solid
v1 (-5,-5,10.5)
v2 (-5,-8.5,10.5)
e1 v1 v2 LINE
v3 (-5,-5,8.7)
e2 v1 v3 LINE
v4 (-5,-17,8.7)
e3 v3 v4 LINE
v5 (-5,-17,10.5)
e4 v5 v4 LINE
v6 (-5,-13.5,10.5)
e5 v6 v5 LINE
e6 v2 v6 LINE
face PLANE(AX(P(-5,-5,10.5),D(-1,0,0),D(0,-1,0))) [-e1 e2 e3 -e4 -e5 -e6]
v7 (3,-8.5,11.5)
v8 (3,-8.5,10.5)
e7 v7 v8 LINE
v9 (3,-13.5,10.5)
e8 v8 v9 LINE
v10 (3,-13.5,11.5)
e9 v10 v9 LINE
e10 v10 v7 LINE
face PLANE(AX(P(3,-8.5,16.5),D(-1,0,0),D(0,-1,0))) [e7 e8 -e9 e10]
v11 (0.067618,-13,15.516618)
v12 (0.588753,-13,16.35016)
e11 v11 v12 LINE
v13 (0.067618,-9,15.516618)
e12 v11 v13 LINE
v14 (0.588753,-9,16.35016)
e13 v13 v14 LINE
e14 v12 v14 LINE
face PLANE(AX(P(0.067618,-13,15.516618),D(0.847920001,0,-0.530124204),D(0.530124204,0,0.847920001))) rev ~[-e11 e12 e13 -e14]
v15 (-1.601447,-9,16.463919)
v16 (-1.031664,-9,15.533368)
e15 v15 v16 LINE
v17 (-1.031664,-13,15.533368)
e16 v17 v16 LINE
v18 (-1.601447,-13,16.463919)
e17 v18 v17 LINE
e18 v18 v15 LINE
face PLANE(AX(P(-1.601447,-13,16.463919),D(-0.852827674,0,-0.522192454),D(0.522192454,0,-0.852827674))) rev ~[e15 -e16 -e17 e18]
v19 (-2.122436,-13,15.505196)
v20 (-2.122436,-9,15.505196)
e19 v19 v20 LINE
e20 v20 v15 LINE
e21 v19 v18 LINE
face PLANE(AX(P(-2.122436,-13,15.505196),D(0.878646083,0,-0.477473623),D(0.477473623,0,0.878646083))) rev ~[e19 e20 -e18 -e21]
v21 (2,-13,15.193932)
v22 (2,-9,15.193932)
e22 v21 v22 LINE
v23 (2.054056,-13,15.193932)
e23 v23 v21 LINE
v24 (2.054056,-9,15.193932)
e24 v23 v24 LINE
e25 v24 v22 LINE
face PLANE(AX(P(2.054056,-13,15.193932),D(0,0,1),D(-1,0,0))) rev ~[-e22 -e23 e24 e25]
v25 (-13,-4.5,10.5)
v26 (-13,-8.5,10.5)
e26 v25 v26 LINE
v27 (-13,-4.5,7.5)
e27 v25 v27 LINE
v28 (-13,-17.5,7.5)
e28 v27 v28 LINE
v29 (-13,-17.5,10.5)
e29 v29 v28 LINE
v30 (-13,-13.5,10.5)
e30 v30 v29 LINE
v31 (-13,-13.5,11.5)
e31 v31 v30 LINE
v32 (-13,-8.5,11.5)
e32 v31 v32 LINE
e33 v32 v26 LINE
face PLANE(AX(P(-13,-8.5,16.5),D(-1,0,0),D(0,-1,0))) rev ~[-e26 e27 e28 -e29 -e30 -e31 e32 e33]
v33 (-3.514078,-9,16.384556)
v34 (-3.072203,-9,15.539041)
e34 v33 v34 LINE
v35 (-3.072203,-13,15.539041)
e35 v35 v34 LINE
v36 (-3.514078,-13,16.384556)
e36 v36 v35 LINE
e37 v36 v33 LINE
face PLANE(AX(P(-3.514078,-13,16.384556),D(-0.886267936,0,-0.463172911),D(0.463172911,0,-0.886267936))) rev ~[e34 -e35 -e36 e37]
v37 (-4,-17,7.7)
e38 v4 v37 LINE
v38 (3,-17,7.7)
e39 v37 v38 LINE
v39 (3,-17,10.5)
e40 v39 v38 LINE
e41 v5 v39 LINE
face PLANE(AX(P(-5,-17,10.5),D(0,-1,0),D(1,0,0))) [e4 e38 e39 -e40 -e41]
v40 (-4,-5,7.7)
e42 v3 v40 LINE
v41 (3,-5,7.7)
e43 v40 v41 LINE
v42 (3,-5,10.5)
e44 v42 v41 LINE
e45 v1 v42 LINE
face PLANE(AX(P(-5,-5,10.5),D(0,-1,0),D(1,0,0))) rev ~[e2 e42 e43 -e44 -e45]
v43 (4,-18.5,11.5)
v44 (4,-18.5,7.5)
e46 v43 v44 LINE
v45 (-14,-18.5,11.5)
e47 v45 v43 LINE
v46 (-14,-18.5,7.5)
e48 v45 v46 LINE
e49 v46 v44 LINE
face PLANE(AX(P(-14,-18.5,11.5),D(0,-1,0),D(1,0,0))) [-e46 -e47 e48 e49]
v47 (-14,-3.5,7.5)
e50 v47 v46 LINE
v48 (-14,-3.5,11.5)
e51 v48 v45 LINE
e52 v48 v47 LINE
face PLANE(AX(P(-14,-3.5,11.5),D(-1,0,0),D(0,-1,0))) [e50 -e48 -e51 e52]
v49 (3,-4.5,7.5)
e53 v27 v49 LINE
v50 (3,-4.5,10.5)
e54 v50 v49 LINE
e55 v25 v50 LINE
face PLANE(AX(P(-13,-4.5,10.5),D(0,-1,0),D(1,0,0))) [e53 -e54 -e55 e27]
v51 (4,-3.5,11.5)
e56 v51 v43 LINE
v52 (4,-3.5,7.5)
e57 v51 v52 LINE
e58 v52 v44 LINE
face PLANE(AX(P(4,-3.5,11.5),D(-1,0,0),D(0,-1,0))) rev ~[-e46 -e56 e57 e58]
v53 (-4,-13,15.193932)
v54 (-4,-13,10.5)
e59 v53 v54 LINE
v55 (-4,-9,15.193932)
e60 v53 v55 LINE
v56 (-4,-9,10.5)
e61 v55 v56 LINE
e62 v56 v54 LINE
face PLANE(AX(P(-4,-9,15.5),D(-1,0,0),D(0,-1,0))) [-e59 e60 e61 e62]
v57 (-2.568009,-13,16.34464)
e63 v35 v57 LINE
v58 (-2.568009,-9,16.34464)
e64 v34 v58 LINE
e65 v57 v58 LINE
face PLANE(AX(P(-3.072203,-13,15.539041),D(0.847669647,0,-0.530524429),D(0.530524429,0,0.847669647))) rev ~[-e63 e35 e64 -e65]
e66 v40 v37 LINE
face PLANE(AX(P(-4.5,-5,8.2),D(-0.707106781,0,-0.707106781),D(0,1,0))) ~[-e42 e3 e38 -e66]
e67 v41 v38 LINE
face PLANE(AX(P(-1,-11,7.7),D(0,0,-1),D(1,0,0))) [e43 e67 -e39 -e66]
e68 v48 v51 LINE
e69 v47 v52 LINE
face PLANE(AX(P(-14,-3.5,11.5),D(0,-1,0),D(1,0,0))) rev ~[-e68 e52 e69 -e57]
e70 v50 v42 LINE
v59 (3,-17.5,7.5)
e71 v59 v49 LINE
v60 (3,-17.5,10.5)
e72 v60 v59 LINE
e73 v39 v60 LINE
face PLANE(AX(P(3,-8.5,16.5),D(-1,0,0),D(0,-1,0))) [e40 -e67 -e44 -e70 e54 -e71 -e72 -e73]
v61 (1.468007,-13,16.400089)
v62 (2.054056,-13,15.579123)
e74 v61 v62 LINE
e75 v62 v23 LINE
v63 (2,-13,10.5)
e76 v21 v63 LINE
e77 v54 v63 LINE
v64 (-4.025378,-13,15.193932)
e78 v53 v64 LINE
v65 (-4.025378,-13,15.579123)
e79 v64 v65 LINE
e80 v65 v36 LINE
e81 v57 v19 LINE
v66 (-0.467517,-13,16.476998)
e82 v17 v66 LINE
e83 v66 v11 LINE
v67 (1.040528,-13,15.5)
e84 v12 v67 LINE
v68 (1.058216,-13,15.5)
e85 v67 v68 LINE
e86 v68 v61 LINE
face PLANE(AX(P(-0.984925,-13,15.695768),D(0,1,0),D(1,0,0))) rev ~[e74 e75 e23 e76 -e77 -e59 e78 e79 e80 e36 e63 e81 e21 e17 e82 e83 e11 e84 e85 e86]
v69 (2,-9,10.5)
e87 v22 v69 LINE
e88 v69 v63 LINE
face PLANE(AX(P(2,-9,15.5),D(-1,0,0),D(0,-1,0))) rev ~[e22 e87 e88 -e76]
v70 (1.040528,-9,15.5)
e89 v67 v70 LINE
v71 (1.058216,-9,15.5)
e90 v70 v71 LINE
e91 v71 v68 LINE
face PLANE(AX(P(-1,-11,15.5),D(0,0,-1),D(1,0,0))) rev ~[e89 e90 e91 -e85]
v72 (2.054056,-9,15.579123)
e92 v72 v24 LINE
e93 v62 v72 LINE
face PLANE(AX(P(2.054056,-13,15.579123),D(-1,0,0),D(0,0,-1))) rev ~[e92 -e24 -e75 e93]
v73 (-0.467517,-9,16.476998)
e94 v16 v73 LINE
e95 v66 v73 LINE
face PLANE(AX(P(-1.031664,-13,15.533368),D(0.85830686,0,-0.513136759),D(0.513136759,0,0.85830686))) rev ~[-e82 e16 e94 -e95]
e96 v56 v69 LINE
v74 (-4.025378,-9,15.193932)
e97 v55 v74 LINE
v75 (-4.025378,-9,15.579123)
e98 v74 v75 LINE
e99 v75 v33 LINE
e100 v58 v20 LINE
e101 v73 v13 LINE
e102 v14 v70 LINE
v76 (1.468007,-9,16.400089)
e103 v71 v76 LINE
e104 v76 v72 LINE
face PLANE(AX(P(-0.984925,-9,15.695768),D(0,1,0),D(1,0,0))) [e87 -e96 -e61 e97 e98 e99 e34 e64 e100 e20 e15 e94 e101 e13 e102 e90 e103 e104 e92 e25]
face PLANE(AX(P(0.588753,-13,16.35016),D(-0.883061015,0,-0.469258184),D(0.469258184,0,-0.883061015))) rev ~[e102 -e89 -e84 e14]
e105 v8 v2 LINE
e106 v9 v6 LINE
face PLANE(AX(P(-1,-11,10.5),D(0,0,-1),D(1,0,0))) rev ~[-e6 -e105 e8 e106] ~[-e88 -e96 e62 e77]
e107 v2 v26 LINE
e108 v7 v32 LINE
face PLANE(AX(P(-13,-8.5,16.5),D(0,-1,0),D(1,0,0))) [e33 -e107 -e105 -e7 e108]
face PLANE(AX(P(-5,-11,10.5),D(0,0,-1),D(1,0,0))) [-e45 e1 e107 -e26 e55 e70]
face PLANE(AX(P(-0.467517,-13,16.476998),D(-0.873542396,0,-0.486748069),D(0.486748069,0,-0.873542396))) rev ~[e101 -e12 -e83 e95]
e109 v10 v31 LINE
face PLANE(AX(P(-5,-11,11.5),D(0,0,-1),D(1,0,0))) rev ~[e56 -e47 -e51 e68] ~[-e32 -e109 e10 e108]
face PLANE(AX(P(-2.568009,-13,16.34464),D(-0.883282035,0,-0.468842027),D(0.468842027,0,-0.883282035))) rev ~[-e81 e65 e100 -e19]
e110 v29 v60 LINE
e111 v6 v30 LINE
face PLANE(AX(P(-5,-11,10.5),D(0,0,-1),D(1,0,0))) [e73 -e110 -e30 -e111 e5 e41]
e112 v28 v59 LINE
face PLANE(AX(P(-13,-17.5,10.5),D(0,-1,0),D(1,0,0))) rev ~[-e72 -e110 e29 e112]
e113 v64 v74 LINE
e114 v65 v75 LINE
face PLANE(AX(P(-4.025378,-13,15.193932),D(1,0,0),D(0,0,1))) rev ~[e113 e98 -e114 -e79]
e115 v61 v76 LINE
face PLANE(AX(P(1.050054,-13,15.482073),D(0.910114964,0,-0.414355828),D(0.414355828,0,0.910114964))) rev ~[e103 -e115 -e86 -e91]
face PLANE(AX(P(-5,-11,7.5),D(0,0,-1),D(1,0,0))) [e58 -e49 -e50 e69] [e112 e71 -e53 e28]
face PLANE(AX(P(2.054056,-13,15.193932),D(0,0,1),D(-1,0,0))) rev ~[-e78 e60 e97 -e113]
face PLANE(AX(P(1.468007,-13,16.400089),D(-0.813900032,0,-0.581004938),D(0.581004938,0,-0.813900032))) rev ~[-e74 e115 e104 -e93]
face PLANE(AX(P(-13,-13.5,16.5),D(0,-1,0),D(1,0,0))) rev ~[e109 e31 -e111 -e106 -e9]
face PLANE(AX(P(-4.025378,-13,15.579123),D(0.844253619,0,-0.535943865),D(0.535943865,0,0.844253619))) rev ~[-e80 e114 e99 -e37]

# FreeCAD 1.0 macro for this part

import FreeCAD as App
import Part
import Sketcher
Q = App.Units.Quantity


def edges_at(feature, points):
    """Names of the edges that pass closest to the given points."""
    edges = feature.Shape.Edges
    near = lambda p: min(range(len(edges)), key=lambda i: edges[i].distToShape(Part.Vertex(*p))[0])
    return sorted({f"Edge{near(p) + 1}" for p in points})


def add_polygon(sketch, points):
    """Adds a closed chain of lines whose ends are joined by coincident constraints."""
    first, n = sketch.GeometryCount, len(points)
    for a, b in zip(points, points[1:] + points[:1]):
        sketch.addGeometry(Part.LineSegment(App.Vector(*a, 0), App.Vector(*b, 0)), False)
    for i in range(n):
        sketch.addConstraint(Sketcher.Constraint("Coincident", first + i, 2, first + (i + 1) % n, 1))

doc = App.newDocument("Part")
body = doc.addObject("PartDesign::Body", "Body")

# Sketch on XZ plane
sketch1 = doc.addObject("Sketcher::SketchObject", "Sketch")
body.addObject(sketch1)
sketch1.AttachmentSupport = (doc.XZ_Plane, [""])
sketch1.MapMode = "FlatFace"
add_polygon(sketch1, [(1.974622, -4.079123), (2.485922, -4.884556), (2.927797, -4.039041), (3.431991, -4.84464), (3.877564, -4.005196), (4.398553, -4.963919), (4.968336, -4.033368), (5.532483, -4.976998), (6.067618, -4.016618), (6.588753, -4.85016), (7.050054, -3.982073), (7.468007, -4.900089), (8.054056, -4.079123), (8.054056, -3.693932), (1.974622, -3.693932)])  # lines 0-14
sketch1.addConstraint([
    Sketcher.Constraint("Vertical", 12),
    Sketcher.Constraint("Horizontal", 13),
    Sketcher.Constraint("Vertical", 14),
    Sketcher.Constraint("DistanceX", 9, 2, 11, 2, Q("1.004002 mm")),
    Sketcher.Constraint("DistanceY", 12, 1, 12, 2, Q("0.385191 mm")),
    Sketcher.Constraint("DistanceY", 14, 2, 14, 1, Q("0.385191 mm")),
    Sketcher.Constraint("DistanceY", 2, 2, 1, 2, Q("0.805599 mm")),
    Sketcher.Constraint("DistanceY", 4, 2, 7, 2, Q("0.947301 mm")),
    Sketcher.Constraint("DistanceX", 4, 2, 8, 2, Q("2.1902 mm")),
    Sketcher.Constraint("DistanceX", 8, 2, 9, 2, Q("0.461301 mm")),
    Sketcher.Constraint("DistanceX", 13, 2, 0, 2, Q("0.5113 mm")),
    Sketcher.Constraint("Distance", 2, Q("0.950369 mm")),
    Sketcher.Constraint("Distance", 3, Q("0.950369 mm")),
    Sketcher.Constraint("Distance", 6, Q("1.099409 mm")),
    Sketcher.Constraint("Distance", 7, Q("1.099409 mm")),
    Sketcher.Constraint("Distance", 10, Q("1.008681 mm")),
    Sketcher.Constraint("Distance", 11, Q("1.008682 mm")),
    Sketcher.Constraint("DistanceX", 13, 2, 13, 1, Q("6.079434 mm")),
    Sketcher.Constraint("DistanceX", -1, 1, 0, 2, Q("2.485922 mm")),
    Sketcher.Constraint("DistanceY", 1, 2, -1, 1, Q("4.039041 mm")),
    Sketcher.Constraint("DistanceX", -1, 1, 2, 2, Q("3.431991 mm")),
    Sketcher.Constraint("DistanceY", 4, 2, -1, 1, Q("4.963919 mm")),
    Sketcher.Constraint("DistanceY", 5, 2, -1, 1, Q("4.033368 mm")),
    Sketcher.Constraint("DistanceX", -1, 1, 7, 2, Q("6.067618 mm")),
    Sketcher.Constraint("DistanceY", 8, 2, -1, 1, Q("4.85016 mm")),
    Sketcher.Constraint("DistanceY", 10, 2, -1, 1, Q("4.900089 mm")),
    Sketcher.Constraint("DistanceY", 0, 2, 3, 2, Q("0.87936 mm")),
    Sketcher.Constraint("DistanceX", 3, 2, 4, 2, Q("0.520989 mm")),
    Sketcher.Constraint("DistanceX", 3, 2, 5, 2, Q("1.090772 mm")),
    Sketcher.Constraint("DistanceX", 7, 2, 10, 2, Q("1.400389 mm")),
])
pad1 = doc.addObject("PartDesign::Pad", "Pad")
body.addObject(pad1)
pad1.Profile = sketch1
pad1.Length = 4
body2 = doc.addObject("PartDesign::Body", "Body001")

# Sketch on XY plane
sketch2 = doc.addObject("Sketcher::SketchObject", "Sketch001")
body2.addObject(sketch2)
sketch2.AttachmentSupport = (doc.getObject("XY_Plane001"), [""])
sketch2.MapMode = "FlatFace"
sketch2.AttachmentOffset = App.Placement(App.Vector(0, 0, -4), App.Rotation())
add_polygon(sketch2, [(2, 0), (2, -4), (8, -4), (8, 0)])  # lines 0-3
sketch2.addConstraint([
    Sketcher.Constraint("Vertical", 0),
    Sketcher.Constraint("Horizontal", 1),
    Sketcher.Constraint("Vertical", 2),
    Sketcher.Constraint("Horizontal", 3),
    Sketcher.Constraint("PointOnObject", 2, 2, -1),
    Sketcher.Constraint("DistanceX", 1, 1, 1, 2, Q("6 mm")),
    Sketcher.Constraint("DistanceY", 0, 2, 0, 1, Q("4 mm")),
    Sketcher.Constraint("DistanceX", -1, 1, 0, 2, Q("2 mm")),
])
pad2 = doc.addObject("PartDesign::Pad", "Pad001")
body2.addObject(pad2)
pad2.Profile = sketch2
pad2.Length = 5
doc.recompute()

boolean = doc.addObject("PartDesign::Boolean", "Boolean")
body2.addObject(boolean)
boolean.Type = "Fuse"
boolean.addObjects([body])
body3 = doc.addObject("PartDesign::Body", "Body002")
doc.recompute()

body2.Placement = App.Placement(App.Vector(8, 9.5, 0), App.Rotation(App.Vector(0, 0, 1), 0))
boolean2 = doc.addObject("PartDesign::Boolean", "Boolean001")
body3.addObject(boolean2)
boolean2.Type = "Fuse"
boolean2.addObjects([body2])
body4 = doc.addObject("PartDesign::Body", "Body003")

# Sketch on XY plane
sketch3 = doc.addObject("Sketcher::SketchObject", "Sketch002")
body4.addObject(sketch3)
sketch3.AttachmentSupport = (doc.getObject("XY_Plane003"), [""])
sketch3.MapMode = "FlatFace"
sketch3.AttachmentOffset = App.Placement(App.Vector(0, 0, -5), App.Rotation())
add_polygon(sketch3, [(1, 10), (1, 5), (17, 5), (17, 10)])  # lines 0-3
sketch3.addConstraint([
    Sketcher.Constraint("Vertical", 0),
    Sketcher.Constraint("Horizontal", 1),
    Sketcher.Constraint("Vertical", 2),
    Sketcher.Constraint("Horizontal", 3),
    Sketcher.Constraint("DistanceX", 1, 1, 1, 2, Q("16 mm")),
    Sketcher.Constraint("DistanceY", 0, 2, 0, 1, Q("5 mm")),
    Sketcher.Constraint("DistanceX", -1, 1, 0, 2, Q("1 mm")),
    Sketcher.Constraint("DistanceY", -1, 1, 0, 2, Q("5 mm")),
])
pad3 = doc.addObject("PartDesign::Pad", "Pad002")
body4.addObject(pad3)
pad3.Profile = sketch3
pad3.Length = 10
body5 = doc.addObject("PartDesign::Body", "Body004")

# Sketch on XY plane
sketch4 = doc.addObject("Sketcher::SketchObject", "Sketch003")
body5.addObject(sketch4)
sketch4.AttachmentSupport = (doc.getObject("XY_Plane004"), [""])
sketch4.MapMode = "FlatFace"
sketch4.AttachmentOffset = App.Placement(App.Vector(0, 0, 1), App.Rotation())
add_polygon(sketch4, [(1, 14), (1, 1), (17, 1), (17, 14)])  # lines 0-3
sketch4.addConstraint([
    Sketcher.Constraint("Vertical", 0),
    Sketcher.Constraint("Horizontal", 1),
    Sketcher.Constraint("Vertical", 2),
    Sketcher.Constraint("Horizontal", 3),
    Sketcher.Constraint("DistanceX", 1, 1, 1, 2, Q("16 mm")),
    Sketcher.Constraint("DistanceY", 0, 2, 0, 1, Q("13 mm")),
    Sketcher.Constraint("DistanceX", -1, 1, 0, 2, Q("1 mm")),
    Sketcher.Constraint("DistanceY", -1, 1, 0, 2, Q("1 mm")),
])
pad4 = doc.addObject("PartDesign::Pad", "Pad003")
body5.addObject(pad4)
pad4.Profile = sketch4
pad4.Length = 3
body6 = doc.addObject("PartDesign::Body", "Body005")

# Sketch on XY plane
sketch5 = doc.addObject("Sketcher::SketchObject", "Sketch004")
body6.addObject(sketch5)
sketch5.AttachmentSupport = (doc.getObject("XY_Plane005"), [""])
sketch5.MapMode = "FlatFace"
add_polygon(sketch5, [(0, 15), (0, 0), (18, 0), (18, 15)])  # lines 0-3
sketch5.addConstraint([
    Sketcher.Constraint("Vertical", 0),
    Sketcher.Constraint("Horizontal", 1),
    Sketcher.Constraint("Vertical", 2),
    Sketcher.Constraint("Horizontal", 3),
    Sketcher.Constraint("Coincident", 0, 2, -1, 1),
    Sketcher.Constraint("DistanceX", 1, 1, 1, 2, Q("18 mm")),
    Sketcher.Constraint("DistanceY", 0, 2, 0, 1, Q("15 mm")),
])
pad5 = doc.addObject("PartDesign::Pad", "Pad004")
body6.addObject(pad5)
pad5.Profile = sketch5
pad5.Length = 4
doc.recompute()

boolean3 = doc.addObject("PartDesign::Boolean", "Boolean002")
body6.addObject(boolean3)
boolean3.Type = "Cut"
boolean3.addObjects([body5])
doc.recompute()

boolean4 = doc.addObject("PartDesign::Boolean", "Boolean003")
body6.addObject(boolean4)
boolean4.Type = "Cut"
boolean4.addObjects([body4])
body7 = doc.addObject("PartDesign::Body", "Body006")

# Sketch on XY plane
sketch6 = doc.addObject("Sketcher::SketchObject", "Sketch005")
body7.addObject(sketch6)
sketch6.AttachmentSupport = (doc.getObject("XY_Plane006"), [""])
sketch6.MapMode = "FlatFace"
sketch6.AttachmentOffset = App.Placement(App.Vector(0, 0, 1), App.Rotation())
add_polygon(sketch6, [(8, 13.5), (8, 1.5), (16, 1.5), (16, 13.5)])  # lines 0-3
sketch6.addConstraint([
    Sketcher.Constraint("Vertical", 0),
    Sketcher.Constraint("Horizontal", 1),
    Sketcher.Constraint("Vertical", 2),
    Sketcher.Constraint("Horizontal", 3),
    Sketcher.Constraint("DistanceX", 1, 1, 1, 2, Q("8 mm")),
    Sketcher.Constraint("DistanceY", 0, 2, 0, 1, Q("12 mm")),
    Sketcher.Constraint("DistanceX", -1, 1, 0, 2, Q("8 mm")),
    Sketcher.Constraint("DistanceY", -1, 1, 0, 2, Q("1.5 mm")),
])
pad6 = doc.addObject("PartDesign::Pad", "Pad005")
body7.addObject(pad6)
pad6.Profile = sketch6
pad6.Length = 2.8
doc.recompute()

chamfer = doc.addObject("PartDesign::Chamfer", "Chamfer")
body7.addObject(chamfer)
chamfer.Base = (pad6, edges_at(pad6, [(8, 7.5, 3.8)]))
chamfer.Size = 1
body8 = doc.addObject("PartDesign::Body", "Body007")
doc.recompute()

body7.Placement = App.Placement(App.Vector(1, 0, 0), App.Rotation(App.Vector(0, 0, 1), 0))
boolean5 = doc.addObject("PartDesign::Boolean", "Boolean004")
body8.addObject(boolean5)
boolean5.Type = "Fuse"
boolean5.addObjects([body7])
doc.recompute()

boolean6 = doc.addObject("PartDesign::Boolean", "Boolean005")
body8.addObject(boolean6)
boolean6.Type = "Fuse"
boolean6.addObjects([body3])
doc.recompute()

boolean7 = doc.addObject("PartDesign::Boolean", "Boolean006")
body8.addObject(boolean7)
boolean7.Type = "Fuse"
boolean7.addObjects([body6])
body9 = doc.addObject("PartDesign::Body", "Body008")
doc.recompute()

body8.Placement = App.Placement(App.Vector(-14, -3.5, 11.5), App.Rotation(App.Vector(1, 0, 0), 180))
boolean8 = doc.addObject("PartDesign::Boolean", "Boolean007")
body9.addObject(boolean8)
boolean8.Type = "Fuse"
boolean8.addObjects([body8])

doc.recompute()
